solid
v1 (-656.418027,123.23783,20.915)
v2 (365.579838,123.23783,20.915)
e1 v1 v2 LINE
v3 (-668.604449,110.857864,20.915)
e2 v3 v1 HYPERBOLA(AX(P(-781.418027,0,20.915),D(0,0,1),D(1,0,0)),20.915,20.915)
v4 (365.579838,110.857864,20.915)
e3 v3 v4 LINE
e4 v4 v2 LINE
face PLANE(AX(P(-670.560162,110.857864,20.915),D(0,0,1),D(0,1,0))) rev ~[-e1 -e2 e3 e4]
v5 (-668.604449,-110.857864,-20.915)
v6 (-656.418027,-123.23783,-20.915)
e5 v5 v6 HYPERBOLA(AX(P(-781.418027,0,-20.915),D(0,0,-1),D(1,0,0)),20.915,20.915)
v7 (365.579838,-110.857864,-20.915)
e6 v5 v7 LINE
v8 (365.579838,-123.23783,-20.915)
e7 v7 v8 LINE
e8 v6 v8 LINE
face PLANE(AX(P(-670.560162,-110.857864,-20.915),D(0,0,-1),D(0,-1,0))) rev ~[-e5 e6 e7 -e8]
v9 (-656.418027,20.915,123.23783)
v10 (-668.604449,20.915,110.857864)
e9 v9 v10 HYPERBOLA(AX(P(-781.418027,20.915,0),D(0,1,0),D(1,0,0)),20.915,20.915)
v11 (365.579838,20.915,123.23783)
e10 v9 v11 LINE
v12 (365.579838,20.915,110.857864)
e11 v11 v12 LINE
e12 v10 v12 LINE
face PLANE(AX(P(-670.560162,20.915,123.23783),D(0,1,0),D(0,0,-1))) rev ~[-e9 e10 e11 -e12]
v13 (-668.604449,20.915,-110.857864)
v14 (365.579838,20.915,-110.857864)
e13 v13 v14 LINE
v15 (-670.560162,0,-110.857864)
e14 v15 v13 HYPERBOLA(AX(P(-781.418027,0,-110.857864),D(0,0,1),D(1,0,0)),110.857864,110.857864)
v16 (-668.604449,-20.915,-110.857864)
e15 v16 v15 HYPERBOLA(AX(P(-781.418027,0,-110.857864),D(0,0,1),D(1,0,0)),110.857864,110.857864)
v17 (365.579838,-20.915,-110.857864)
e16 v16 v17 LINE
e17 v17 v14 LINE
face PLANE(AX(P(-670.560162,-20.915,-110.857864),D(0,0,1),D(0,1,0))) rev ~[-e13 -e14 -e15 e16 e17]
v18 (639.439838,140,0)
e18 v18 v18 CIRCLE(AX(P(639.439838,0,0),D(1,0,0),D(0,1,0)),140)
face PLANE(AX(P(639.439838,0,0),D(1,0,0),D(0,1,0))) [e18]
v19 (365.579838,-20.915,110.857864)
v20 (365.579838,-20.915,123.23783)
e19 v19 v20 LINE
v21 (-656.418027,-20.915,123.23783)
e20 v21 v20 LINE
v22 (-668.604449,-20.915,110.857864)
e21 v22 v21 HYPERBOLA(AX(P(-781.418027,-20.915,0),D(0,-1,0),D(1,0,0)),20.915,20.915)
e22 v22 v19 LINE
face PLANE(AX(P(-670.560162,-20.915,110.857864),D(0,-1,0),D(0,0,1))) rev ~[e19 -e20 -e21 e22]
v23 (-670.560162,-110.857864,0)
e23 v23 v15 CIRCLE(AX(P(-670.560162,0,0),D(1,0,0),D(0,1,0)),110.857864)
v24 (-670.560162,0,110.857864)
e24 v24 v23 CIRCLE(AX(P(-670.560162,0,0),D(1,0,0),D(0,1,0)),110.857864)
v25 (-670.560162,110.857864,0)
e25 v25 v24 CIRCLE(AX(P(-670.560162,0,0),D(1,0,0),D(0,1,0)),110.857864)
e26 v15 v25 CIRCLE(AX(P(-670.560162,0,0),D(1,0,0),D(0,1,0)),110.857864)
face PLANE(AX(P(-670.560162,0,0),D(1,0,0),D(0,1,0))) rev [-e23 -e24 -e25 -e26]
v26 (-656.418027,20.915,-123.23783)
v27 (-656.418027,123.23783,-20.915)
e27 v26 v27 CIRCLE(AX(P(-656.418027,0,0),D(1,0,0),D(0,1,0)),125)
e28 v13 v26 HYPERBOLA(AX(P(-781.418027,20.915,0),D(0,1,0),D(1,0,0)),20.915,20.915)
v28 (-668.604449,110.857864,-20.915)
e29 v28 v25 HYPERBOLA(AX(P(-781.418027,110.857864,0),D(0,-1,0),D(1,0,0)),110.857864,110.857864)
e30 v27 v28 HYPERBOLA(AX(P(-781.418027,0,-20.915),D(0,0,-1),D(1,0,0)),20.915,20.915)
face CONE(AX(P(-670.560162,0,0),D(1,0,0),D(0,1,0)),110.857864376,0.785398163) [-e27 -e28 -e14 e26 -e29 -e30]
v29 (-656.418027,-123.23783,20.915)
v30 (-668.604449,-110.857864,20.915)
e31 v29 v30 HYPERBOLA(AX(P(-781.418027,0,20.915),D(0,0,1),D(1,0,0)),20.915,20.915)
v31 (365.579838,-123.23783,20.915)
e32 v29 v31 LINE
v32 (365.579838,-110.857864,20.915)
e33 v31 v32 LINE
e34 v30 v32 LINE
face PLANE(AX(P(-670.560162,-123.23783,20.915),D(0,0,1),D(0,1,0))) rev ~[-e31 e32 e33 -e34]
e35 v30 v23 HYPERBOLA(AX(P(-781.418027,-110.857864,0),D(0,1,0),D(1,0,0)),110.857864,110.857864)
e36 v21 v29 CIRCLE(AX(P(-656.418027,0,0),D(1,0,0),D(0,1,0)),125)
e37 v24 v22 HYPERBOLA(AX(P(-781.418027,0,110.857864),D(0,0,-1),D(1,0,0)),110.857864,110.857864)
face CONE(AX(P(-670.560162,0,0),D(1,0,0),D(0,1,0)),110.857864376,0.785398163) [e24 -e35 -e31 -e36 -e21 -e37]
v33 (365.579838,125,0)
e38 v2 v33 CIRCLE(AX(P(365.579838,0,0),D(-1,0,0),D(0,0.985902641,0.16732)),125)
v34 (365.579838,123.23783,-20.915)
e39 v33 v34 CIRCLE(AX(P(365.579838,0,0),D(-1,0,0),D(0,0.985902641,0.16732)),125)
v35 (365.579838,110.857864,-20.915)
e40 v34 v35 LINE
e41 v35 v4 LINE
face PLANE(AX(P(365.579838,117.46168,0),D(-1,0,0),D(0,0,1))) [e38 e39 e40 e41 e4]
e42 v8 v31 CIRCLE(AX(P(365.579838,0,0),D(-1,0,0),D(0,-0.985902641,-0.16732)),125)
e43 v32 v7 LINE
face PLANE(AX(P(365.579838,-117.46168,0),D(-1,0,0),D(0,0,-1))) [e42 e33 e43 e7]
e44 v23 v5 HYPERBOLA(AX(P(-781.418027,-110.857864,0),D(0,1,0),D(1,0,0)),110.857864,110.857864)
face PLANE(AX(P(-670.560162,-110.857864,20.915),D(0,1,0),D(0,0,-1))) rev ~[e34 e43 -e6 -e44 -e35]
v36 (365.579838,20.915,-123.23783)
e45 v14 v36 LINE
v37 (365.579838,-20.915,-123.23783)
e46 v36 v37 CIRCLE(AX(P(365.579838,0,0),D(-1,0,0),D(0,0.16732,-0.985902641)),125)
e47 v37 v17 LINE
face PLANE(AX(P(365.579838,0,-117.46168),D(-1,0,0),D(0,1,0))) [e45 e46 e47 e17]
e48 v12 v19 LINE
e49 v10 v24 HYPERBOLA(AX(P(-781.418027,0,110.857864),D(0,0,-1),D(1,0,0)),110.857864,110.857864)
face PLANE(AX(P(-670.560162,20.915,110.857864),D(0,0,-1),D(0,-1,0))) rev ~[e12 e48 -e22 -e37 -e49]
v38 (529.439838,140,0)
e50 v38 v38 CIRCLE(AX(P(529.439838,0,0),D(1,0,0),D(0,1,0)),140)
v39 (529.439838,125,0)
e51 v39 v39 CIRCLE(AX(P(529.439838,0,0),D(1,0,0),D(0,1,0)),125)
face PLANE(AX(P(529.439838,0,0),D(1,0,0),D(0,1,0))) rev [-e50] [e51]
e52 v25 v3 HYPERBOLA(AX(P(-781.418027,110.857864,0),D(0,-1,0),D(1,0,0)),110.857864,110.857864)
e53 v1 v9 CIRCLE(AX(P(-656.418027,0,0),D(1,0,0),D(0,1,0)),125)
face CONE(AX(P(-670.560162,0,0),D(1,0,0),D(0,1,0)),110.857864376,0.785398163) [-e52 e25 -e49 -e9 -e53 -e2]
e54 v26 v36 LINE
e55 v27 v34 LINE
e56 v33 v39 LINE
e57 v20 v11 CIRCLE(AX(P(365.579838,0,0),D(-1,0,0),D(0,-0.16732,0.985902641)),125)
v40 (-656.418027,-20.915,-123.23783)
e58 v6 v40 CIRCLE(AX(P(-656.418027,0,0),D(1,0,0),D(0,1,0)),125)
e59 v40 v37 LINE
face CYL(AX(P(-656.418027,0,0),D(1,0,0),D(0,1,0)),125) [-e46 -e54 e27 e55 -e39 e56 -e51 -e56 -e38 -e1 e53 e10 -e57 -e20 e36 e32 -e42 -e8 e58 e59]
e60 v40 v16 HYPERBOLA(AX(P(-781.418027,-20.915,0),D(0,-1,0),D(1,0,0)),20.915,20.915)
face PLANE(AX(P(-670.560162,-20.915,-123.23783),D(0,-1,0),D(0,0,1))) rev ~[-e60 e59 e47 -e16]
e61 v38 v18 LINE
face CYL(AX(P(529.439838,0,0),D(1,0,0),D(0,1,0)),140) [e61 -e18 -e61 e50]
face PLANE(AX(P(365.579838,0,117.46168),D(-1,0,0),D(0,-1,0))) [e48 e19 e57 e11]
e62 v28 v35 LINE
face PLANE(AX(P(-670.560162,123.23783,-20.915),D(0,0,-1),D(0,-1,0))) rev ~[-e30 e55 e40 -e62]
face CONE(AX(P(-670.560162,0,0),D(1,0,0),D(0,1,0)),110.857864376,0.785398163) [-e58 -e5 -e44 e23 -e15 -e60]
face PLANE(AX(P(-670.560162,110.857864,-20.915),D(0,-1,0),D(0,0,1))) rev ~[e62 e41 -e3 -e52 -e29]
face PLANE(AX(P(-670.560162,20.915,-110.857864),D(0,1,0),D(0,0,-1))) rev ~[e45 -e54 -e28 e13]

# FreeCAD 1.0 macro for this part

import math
import FreeCAD as App
import Part
import Sketcher

V = App.Vector
Q = App.Units.Quantity

doc = App.newDocument("Part")
body = doc.addObject("PartDesign::Body", "Body")

# Sketch on XY plane
sketch1 = body.newObject("Sketcher::SketchObject", "Sketch")
sketch1.AttachmentSupport = (doc.getObject("XY_Plane"), [""])
sketch1.MapMode = "FlatFace"
sketch1.addGeometry([
    Part.LineSegment(V(-670.560162, 110.857864, 0), V(-670.560162, 0, 0)),  # 0
    Part.LineSegment(V(-670.560162, 0, 0), V(639.439838, 0, 0)),  # 1
    Part.LineSegment(V(639.439838, 0, 0), V(639.439838, 140, 0)),  # 2
    Part.LineSegment(V(639.439838, 140, 0), V(529.439838, 140, 0)),  # 3
    Part.LineSegment(V(529.439838, 140, 0), V(529.439838, 125, 0)),  # 4
    Part.LineSegment(V(529.439838, 125, 0), V(-656.418027, 125, 0)),  # 5
    Part.LineSegment(V(-656.418027, 125, 0), V(-670.560162, 110.857864, 0)),  # 6
], False)
sketch1.addConstraint([
    Sketcher.Constraint("Coincident", 0, 2, 1, 1),
    Sketcher.Constraint("Coincident", 1, 2, 2, 1),
    Sketcher.Constraint("Coincident", 2, 2, 3, 1),
    Sketcher.Constraint("Coincident", 3, 2, 4, 1),
    Sketcher.Constraint("Coincident", 4, 2, 5, 1),
    Sketcher.Constraint("Coincident", 5, 2, 6, 1),
    Sketcher.Constraint("Coincident", 6, 2, 0, 1),
    Sketcher.Constraint("Vertical", 0),
    Sketcher.Constraint("Horizontal", 1),
    Sketcher.Constraint("Vertical", 2),
    Sketcher.Constraint("Horizontal", 3),
    Sketcher.Constraint("Vertical", 4),
    Sketcher.Constraint("Horizontal", 5),
    Sketcher.Constraint("PointOnObject", 0, 2, -1),
    Sketcher.Constraint("DistanceX", 1, 1, 1, 2, Q("1310 mm")),
    Sketcher.Constraint("DistanceX", 3, 2, 3, 1, Q("110 mm")),
    Sketcher.Constraint("DistanceY", 2, 1, 2, 2, Q("140 mm")),
    Sketcher.Constraint("DistanceY", 4, 2, 4, 1, Q("15 mm")),
    Sketcher.Constraint("Angle", 6, Q("-135 deg")),
    Sketcher.Constraint("Distance", 6, Q("20 mm")),
    Sketcher.Constraint("DistanceX", 0, 2, -1, 1, Q("670.560162 mm")),
])
revolution = body.newObject("PartDesign::Revolution", "Revolution")
revolution.Profile = sketch1
revolution.ReferenceAxis = (sketch1, ["H_Axis"])
revolution.Angle = 360

# Sketch on YZ plane
sketch2 = body.newObject("Sketcher::SketchObject", "Sketch001")
sketch2.AttachmentSupport = (doc.getObject("YZ_Plane"), [""])
sketch2.MapMode = "FlatFace"
sketch2.AttachmentOffset = App.Placement(V(0, 0, -670.560162), App.Rotation())
sketch2.addGeometry([
    Part.LineSegment(V(110.857864, -20.915, 0), V(110.857864, 20.915, 0)),
    Part.LineSegment(V(110.857864, 20.915, 0), V(123.23783, 20.915, 0)),
    Part.ArcOfCircle(Part.Circle(V(0, 0, 0), V(0, 0, 1), 125), math.radians(-9.632035), math.radians(9.632035)),
    Part.LineSegment(V(123.23783, -20.915, 0), V(110.857864, -20.915, 0)),
], False)
sketch2.addConstraint([
    Sketcher.Constraint("Coincident", 0, 2, 1, 1),
    Sketcher.Constraint("Coincident", 1, 2, 2, 2),
    Sketcher.Constraint("Coincident", 2, 1, 3, 1),
    Sketcher.Constraint("Coincident", 3, 2, 0, 1),
    Sketcher.Constraint("Vertical", 0),
    Sketcher.Constraint("Horizontal", 1),
    Sketcher.Constraint("Horizontal", 3),
    Sketcher.Constraint("Coincident", 2, 3, -1, 1),
    Sketcher.Constraint("Vertical", 1, 2, 2, 1),
    Sketcher.Constraint("Radius", 2, Q("125 mm")),
    Sketcher.Constraint("DistanceY", 0, 1, 0, 2, Q("41.83 mm")),
    Sketcher.Constraint("DistanceX", 1, 1, 1, 2, Q("12.379966 mm")),
])
pocket1 = body.newObject("PartDesign::Pocket", "Pocket")
pocket1.Profile = sketch2
pocket1.Length = 1036.14
pocket1.Reversed = True
doc.recompute()

polarpattern = body.newObject("PartDesign::PolarPattern", "PolarPattern")
polarpattern.Originals = [pocket1]
polarpattern.Axis = (doc.getObject("X_Axis"), [""])
polarpattern.Angle = 360
polarpattern.Occurrences = 4
body.Tip = polarpattern

doc.recompute()
